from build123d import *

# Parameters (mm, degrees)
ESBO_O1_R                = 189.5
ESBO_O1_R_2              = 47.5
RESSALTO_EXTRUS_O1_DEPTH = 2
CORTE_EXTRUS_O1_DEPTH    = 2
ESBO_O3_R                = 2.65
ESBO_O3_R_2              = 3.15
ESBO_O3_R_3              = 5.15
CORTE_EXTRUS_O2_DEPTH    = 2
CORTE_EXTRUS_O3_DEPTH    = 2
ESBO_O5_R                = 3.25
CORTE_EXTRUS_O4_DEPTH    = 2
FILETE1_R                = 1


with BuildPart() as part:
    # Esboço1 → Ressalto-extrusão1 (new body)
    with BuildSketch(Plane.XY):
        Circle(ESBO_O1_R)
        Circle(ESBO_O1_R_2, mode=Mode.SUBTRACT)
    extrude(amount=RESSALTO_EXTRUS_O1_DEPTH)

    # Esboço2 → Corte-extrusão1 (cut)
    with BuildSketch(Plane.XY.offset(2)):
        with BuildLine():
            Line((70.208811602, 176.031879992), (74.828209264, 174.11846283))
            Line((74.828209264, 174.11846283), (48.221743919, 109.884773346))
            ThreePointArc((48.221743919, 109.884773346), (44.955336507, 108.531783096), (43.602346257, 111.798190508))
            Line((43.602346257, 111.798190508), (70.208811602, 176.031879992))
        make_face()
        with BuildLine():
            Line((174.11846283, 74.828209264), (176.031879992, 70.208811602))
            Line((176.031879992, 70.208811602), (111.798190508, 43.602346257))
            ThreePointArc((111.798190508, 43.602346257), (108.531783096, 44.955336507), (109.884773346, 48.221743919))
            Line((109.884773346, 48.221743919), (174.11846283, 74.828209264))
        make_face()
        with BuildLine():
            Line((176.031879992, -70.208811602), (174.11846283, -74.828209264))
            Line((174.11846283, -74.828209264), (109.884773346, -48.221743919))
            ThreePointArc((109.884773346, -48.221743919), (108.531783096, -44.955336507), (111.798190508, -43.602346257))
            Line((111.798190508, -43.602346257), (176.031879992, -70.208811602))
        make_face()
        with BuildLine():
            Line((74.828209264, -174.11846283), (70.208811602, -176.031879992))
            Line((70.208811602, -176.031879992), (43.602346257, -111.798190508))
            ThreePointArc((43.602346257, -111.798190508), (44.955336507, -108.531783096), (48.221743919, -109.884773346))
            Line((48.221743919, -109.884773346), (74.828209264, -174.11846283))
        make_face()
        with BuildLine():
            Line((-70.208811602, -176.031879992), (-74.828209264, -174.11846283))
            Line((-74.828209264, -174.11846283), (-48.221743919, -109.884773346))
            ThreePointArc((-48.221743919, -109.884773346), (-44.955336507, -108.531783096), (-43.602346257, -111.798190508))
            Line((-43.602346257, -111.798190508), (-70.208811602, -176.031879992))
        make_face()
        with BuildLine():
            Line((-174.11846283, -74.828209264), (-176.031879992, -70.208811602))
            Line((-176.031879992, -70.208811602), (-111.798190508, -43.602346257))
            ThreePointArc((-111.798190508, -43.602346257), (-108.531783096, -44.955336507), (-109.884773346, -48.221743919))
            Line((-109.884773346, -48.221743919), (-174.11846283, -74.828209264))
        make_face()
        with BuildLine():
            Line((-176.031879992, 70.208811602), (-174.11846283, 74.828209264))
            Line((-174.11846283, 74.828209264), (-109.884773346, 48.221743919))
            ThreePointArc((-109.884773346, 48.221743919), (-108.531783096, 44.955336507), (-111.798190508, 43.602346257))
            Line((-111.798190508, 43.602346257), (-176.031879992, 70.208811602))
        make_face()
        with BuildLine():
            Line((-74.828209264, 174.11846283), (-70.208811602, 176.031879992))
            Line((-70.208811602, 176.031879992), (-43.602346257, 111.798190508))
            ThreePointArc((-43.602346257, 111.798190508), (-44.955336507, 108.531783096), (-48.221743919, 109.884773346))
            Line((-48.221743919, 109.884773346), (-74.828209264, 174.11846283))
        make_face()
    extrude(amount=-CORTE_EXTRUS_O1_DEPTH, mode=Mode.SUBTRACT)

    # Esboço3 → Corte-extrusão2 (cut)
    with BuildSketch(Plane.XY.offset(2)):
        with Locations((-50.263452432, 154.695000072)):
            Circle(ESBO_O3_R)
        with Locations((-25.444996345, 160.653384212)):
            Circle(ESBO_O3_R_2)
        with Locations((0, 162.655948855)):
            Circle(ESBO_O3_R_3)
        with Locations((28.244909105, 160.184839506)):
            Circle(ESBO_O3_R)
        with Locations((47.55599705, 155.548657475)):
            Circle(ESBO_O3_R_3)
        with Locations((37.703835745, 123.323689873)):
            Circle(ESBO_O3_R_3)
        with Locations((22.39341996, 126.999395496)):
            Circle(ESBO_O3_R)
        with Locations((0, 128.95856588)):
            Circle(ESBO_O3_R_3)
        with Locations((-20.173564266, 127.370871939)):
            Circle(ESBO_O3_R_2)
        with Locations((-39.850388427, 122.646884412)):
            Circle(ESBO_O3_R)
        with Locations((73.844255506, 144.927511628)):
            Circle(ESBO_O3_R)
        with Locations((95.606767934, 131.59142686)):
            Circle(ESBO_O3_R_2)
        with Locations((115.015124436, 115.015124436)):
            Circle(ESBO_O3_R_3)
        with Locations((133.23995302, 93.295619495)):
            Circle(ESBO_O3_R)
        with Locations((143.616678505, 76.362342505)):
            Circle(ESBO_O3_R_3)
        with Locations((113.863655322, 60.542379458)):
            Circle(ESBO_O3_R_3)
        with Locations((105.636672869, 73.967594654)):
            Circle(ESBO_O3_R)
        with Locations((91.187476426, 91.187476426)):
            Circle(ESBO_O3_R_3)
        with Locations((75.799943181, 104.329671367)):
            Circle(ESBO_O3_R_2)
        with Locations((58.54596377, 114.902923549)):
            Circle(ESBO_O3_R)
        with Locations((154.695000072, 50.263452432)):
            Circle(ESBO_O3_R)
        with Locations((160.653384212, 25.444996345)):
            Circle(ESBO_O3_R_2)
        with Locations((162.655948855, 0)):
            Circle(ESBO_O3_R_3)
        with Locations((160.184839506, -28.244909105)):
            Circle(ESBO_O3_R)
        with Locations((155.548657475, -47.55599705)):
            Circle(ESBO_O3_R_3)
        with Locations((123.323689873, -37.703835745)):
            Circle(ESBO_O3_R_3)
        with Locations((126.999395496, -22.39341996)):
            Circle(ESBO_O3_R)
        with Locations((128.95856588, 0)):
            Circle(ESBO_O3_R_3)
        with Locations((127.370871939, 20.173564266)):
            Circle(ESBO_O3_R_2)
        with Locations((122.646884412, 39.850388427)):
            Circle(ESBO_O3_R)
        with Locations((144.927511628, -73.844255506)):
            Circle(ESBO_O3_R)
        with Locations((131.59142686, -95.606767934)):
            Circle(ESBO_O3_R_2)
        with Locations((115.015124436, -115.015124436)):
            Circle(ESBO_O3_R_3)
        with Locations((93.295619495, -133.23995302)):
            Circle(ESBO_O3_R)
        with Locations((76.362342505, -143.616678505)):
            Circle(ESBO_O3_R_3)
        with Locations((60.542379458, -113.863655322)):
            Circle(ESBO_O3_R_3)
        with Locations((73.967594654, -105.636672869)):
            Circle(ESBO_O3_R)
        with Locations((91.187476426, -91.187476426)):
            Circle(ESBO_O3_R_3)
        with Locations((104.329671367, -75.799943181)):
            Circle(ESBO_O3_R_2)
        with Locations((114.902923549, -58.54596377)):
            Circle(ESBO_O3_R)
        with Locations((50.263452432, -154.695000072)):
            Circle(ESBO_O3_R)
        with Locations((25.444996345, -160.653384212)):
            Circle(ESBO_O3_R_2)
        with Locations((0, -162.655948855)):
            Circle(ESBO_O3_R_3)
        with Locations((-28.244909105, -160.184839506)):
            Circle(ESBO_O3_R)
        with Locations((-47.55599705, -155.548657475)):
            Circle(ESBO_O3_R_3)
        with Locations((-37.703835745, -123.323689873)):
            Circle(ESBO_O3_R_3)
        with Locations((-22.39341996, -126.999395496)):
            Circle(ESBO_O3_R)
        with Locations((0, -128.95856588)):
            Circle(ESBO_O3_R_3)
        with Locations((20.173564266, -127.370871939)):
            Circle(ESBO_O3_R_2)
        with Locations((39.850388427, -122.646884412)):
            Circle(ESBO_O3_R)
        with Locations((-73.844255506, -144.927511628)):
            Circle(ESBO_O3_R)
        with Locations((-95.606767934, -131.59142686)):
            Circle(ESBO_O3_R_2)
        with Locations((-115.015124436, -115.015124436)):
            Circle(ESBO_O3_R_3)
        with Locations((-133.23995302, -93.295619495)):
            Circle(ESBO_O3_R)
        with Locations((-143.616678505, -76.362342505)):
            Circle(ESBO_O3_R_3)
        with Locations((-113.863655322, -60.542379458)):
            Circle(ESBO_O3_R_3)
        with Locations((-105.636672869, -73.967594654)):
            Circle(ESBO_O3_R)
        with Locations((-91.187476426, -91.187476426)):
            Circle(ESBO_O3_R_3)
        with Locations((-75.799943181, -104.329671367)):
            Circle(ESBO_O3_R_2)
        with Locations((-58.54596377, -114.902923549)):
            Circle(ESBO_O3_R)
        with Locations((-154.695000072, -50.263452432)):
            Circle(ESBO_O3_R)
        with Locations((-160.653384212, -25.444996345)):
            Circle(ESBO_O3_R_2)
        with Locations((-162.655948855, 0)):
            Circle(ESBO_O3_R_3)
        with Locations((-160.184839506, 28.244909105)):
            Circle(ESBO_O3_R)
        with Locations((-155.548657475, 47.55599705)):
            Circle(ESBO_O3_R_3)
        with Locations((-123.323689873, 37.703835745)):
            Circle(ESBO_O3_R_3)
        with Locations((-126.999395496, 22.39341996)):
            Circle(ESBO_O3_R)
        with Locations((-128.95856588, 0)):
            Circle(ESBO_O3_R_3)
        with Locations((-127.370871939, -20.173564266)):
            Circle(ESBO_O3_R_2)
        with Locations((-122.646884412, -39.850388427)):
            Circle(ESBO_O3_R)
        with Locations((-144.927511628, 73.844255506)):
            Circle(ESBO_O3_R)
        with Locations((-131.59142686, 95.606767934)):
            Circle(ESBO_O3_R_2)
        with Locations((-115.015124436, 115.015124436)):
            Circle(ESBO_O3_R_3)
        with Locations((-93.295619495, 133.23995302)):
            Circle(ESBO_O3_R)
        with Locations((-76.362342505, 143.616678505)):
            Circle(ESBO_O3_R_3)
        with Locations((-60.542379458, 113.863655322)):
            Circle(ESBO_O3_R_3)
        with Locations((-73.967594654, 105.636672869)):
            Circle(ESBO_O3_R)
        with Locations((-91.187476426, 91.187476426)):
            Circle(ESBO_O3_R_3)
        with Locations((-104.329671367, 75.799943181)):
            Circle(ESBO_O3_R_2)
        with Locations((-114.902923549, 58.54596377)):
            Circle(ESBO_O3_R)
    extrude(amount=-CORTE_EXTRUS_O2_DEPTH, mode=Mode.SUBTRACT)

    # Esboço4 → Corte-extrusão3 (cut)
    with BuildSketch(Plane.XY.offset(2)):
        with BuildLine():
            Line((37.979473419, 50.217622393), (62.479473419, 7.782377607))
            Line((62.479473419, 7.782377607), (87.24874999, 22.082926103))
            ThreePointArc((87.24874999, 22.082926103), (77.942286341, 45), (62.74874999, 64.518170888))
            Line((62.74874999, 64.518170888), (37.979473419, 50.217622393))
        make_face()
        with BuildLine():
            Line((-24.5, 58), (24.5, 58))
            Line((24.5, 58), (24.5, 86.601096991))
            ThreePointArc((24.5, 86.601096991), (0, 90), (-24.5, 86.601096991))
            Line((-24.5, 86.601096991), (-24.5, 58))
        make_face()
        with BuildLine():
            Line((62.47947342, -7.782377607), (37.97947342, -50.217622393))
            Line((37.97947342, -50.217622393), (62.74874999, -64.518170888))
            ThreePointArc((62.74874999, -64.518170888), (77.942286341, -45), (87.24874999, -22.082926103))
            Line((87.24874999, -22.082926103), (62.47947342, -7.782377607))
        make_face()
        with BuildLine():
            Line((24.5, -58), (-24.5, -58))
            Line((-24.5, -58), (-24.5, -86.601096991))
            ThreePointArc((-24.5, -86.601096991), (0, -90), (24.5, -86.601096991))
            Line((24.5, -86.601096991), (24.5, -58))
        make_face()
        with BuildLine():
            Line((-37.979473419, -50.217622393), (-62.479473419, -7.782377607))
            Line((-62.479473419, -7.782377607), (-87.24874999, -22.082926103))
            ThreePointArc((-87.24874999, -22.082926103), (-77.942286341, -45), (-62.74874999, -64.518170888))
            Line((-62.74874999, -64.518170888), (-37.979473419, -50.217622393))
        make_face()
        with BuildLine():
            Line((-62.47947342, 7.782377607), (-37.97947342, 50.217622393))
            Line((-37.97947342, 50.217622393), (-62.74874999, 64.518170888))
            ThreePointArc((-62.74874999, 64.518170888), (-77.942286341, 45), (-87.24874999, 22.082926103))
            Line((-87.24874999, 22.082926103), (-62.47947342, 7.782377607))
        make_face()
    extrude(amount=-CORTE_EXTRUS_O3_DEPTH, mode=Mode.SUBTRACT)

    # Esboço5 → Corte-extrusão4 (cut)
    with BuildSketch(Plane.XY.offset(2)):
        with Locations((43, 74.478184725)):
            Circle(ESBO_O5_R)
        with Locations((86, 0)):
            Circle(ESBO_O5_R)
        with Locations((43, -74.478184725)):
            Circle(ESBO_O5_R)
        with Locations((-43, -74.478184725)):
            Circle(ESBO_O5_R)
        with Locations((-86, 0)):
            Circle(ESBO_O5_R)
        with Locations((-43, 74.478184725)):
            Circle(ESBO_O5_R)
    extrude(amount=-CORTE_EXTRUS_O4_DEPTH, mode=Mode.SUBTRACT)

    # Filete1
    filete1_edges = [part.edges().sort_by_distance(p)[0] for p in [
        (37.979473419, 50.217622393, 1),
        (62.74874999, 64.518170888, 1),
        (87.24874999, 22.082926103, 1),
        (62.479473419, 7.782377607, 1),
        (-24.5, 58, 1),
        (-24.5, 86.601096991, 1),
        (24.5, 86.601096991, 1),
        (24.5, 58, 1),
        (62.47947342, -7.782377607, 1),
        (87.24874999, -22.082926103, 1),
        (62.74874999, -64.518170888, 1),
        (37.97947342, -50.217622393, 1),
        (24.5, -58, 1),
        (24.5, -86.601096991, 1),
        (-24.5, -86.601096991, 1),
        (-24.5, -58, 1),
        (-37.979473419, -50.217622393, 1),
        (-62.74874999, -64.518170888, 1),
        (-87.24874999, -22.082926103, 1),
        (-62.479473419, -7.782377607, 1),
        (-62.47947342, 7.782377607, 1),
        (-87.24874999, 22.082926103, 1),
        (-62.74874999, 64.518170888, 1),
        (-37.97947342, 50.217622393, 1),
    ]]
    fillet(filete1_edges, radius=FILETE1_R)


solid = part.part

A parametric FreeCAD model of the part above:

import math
import FreeCAD as App
import Part
import Sketcher

V = App.Vector
Q = App.Units.Quantity


def edges_at(feature, points):
    """Names of the edges that pass closest to the given points."""
    edges = feature.Shape.Edges
    near = lambda p: min(range(len(edges)), key=lambda i: edges[i].distToShape(Part.Vertex(*p))[0])
    return sorted({f"Edge{near(p) + 1}" for p in points})

doc = App.newDocument("Part")
params = doc.addObject("Spreadsheet::Sheet", "Params")
for row, (alias, value) in enumerate([
    ("sketch1_diameter", "379 mm"),
    ("sketch1_diameter2", "95 mm"),
    ("pad1_length", "2 mm"),
    ("sketch2_radius", "2.5 mm"),
    ("pocket1_length", "2 mm"),
    ("sketch3_diameter", "5.3 mm"),
    ("sketch3_diameter2", "6.3 mm"),
    ("sketch3_diameter3", "10.3 mm"),
    ("pocket2_length", "2 mm"),
    ("sketch4_radius", "90 mm"),
    ("sketch4_width", "49 mm"),
    ("sketch4_length", "49 mm"),
    ("pocket3_length", "2 mm"),
    ("sketch5_diameter", "6.5 mm"),
    ("pocket4_length", "2 mm"),
    ("fillet_radius", "1 mm"),
], start=1):
    params.set(f"A{row}", alias)
    params.set(f"B{row}", "=" + value)
    params.setAlias(f"B{row}", alias)

body = doc.addObject("PartDesign::Body", "Body")

sketch1 = body.newObject("Sketcher::SketchObject", "Sketch")
sketch1.AttachmentSupport = (doc.getObject("XY_Plane"), [""])
sketch1.MapMode = "FlatFace"
sketch1.addGeometry([
    Part.Circle(V(0, 0, 0), V(0, 0, 1), 190),
    Part.Circle(V(0, 0, 0), V(0, 0, 1), 48),
], False)
sketch1.addConstraint([
    Sketcher.Constraint("Coincident", 0, 3, -1, 1),
    Sketcher.Constraint("Coincident", 1, 3, -1, 1),
    Sketcher.Constraint("Diameter", 0, 379.0),
    Sketcher.Constraint("Diameter", 1, 95.0),
])
sketch1.setExpression("Constraints[2]", "Params.sketch1_diameter")
sketch1.setExpression("Constraints[3]", "Params.sketch1_diameter2")
pad1 = body.newObject("PartDesign::Pad", "Pad")
pad1.Profile = sketch1
pad1.setExpression("Length", "Params.pad1_length")

sketch2 = body.newObject("Sketcher::SketchObject", "Sketch001")
sketch2.AttachmentSupport = (doc.getObject("XY_Plane"), [""])
sketch2.MapMode = "FlatFace"
sketch2.AttachmentOffset = App.Placement(V(0, 0, 2), App.Rotation())
sketch2.addGeometry([
    Part.LineSegment(V(74.8, 174.1, 0), V(70.2, 176, 0)),
    Part.LineSegment(V(70.2, 176, 0), V(43.6, 111.8, 0)),
    Part.ArcOfCircle(Part.Circle(V(45.9, 110.8, 0), V(0, 0, 1), 2.5), math.radians(157), math.radians(337)),
    Part.LineSegment(V(48.2, 109.9, 0), V(74.8, 174.1, 0)),
    Part.LineSegment(V(176, 70.2, 0), V(174.1, 74.8, 0)),
    Part.LineSegment(V(174.1, 74.8, 0), V(109.9, 48.2, 0)),
    Part.ArcOfCircle(Part.Circle(V(110.8, 45.9, 0), V(0, 0, 1), 2.5), math.radians(113), math.radians(293)),
    Part.LineSegment(V(111.8, 43.6, 0), V(176, 70.2, 0)),
    Part.LineSegment(V(174.1, -74.8, 0), V(176, -70.2, 0)),
    Part.LineSegment(V(176, -70.2, 0), V(111.8, -43.6, 0)),
    Part.ArcOfCircle(Part.Circle(V(110.8, -45.9, 0), V(0, 0, 1), 2.5), math.radians(67), math.radians(247)),
    Part.LineSegment(V(109.9, -48.2, 0), V(174.1, -74.8, 0)),
    Part.LineSegment(V(70.2, -176, 0), V(74.8, -174.1, 0)),
    Part.LineSegment(V(74.8, -174.1, 0), V(48.2, -109.9, 0)),
    Part.ArcOfCircle(Part.Circle(V(45.9, -110.8, 0), V(0, 0, 1), 2.5), math.radians(23), math.radians(203)),
    Part.LineSegment(V(43.6, -111.8, 0), V(70.2, -176, 0)),
    Part.LineSegment(V(-74.8, -174.1, 0), V(-70.2, -176, 0)),
    Part.LineSegment(V(-70.2, -176, 0), V(-43.6, -111.8, 0)),
    Part.ArcOfCircle(Part.Circle(V(-45.9, -110.8, 0), V(0, 0, 1), 2.5), math.radians(-23), math.radians(157)),
    Part.LineSegment(V(-48.2, -109.9, 0), V(-74.8, -174.1, 0)),
    Part.LineSegment(V(-176, -70.2, 0), V(-174.1, -74.8, 0)),
    Part.LineSegment(V(-174.1, -74.8, 0), V(-109.9, -48.2, 0)),
    Part.ArcOfCircle(Part.Circle(V(-110.8, -45.9, 0), V(0, 0, 1), 2.5), math.radians(-67), math.radians(113)),
    Part.LineSegment(V(-111.8, -43.6, 0), V(-176, -70.2, 0)),
    Part.LineSegment(V(-174.1, 74.8, 0), V(-176, 70.2, 0)),
    Part.LineSegment(V(-176, 70.2, 0), V(-111.8, 43.6, 0)),
    Part.ArcOfCircle(Part.Circle(V(-110.8, 45.9, 0), V(0, 0, 1), 2.5), math.radians(-113), math.radians(67)),
    Part.LineSegment(V(-109.9, 48.2, 0), V(-174.1, 74.8, 0)),
    Part.LineSegment(V(-70.2, 176, 0), V(-74.8, 174.1, 0)),
    Part.LineSegment(V(-74.8, 174.1, 0), V(-48.2, 109.9, 0)),
    Part.ArcOfCircle(Part.Circle(V(-45.9, 110.8, 0), V(0, 0, 1), 2.5), math.radians(-157), math.radians(23)),
    Part.LineSegment(V(-43.6, 111.8, 0), V(-70.2, 176, 0)),
], False)
sketch2.addConstraint([
    Sketcher.Constraint("Coincident", 0, 2, 1, 1),
    Sketcher.Constraint("Tangent", 1, 2, 2, 1),
    Sketcher.Constraint("Tangent", 2, 2, 3, 1),
    Sketcher.Constraint("Coincident", 3, 2, 0, 1),
    Sketcher.Constraint("Coincident", 4, 2, 5, 1),
    Sketcher.Constraint("Tangent", 5, 2, 6, 1),
    Sketcher.Constraint("Tangent", 6, 2, 7, 1),
    Sketcher.Constraint("Coincident", 7, 2, 4, 1),
    Sketcher.Constraint("Coincident", 8, 2, 9, 1),
    Sketcher.Constraint("Tangent", 9, 2, 10, 1),
    Sketcher.Constraint("Tangent", 10, 2, 11, 1),
    Sketcher.Constraint("Coincident", 11, 2, 8, 1),
    Sketcher.Constraint("Coincident", 12, 2, 13, 1),
    Sketcher.Constraint("Tangent", 13, 2, 14, 1),
    Sketcher.Constraint("Tangent", 14, 2, 15, 1),
    Sketcher.Constraint("Coincident", 15, 2, 12, 1),
    Sketcher.Constraint("Coincident", 16, 2, 17, 1),
    Sketcher.Constraint("Tangent", 17, 2, 18, 1),
    Sketcher.Constraint("Tangent", 18, 2, 19, 1),
    Sketcher.Constraint("Coincident", 19, 2, 16, 1),
    Sketcher.Constraint("Coincident", 20, 2, 21, 1),
    Sketcher.Constraint("Tangent", 21, 2, 22, 1),
    Sketcher.Constraint("Tangent", 22, 2, 23, 1),
    Sketcher.Constraint("Coincident", 23, 2, 20, 1),
    Sketcher.Constraint("Coincident", 24, 2, 25, 1),
    Sketcher.Constraint("Tangent", 25, 2, 26, 1),
    Sketcher.Constraint("Tangent", 26, 2, 27, 1),
    Sketcher.Constraint("Coincident", 27, 2, 24, 1),
    Sketcher.Constraint("Coincident", 28, 2, 29, 1),
    Sketcher.Constraint("Tangent", 29, 2, 30, 1),
    Sketcher.Constraint("Tangent", 30, 2, 31, 1),
    Sketcher.Constraint("Coincident", 31, 2, 28, 1),
    Sketcher.Constraint("Equal", 2, 6),
    Sketcher.Constraint("Equal", 6, 10),
    Sketcher.Constraint("Equal", 10, 14),
    Sketcher.Constraint("Equal", 14, 18),
    Sketcher.Constraint("Equal", 18, 22),
    Sketcher.Constraint("Equal", 22, 26),
    Sketcher.Constraint("Equal", 26, 30),
    Sketcher.Constraint("Symmetric", 2, 3, 18, 3, -1, 1),
    Sketcher.Constraint("Symmetric", 6, 3, 22, 3, -1, 1),
    Sketcher.Constraint("Symmetric", 10, 3, 26, 3, -1, 1),
    Sketcher.Constraint("Symmetric", 14, 3, 30, 3, -1, 1),
    Sketcher.Constraint("Symmetric", 0, 2, 16, 2, -1, 1),
    Sketcher.Constraint("Symmetric", 3, 2, 19, 2, -1, 1),
    Sketcher.Constraint("Symmetric", 4, 2, 20, 2, -1, 1),
    Sketcher.Constraint("Symmetric", 7, 2, 23, 2, -1, 1),
    Sketcher.Constraint("Symmetric", 8, 2, 24, 2, -1, 1),
    Sketcher.Constraint("Symmetric", 11, 2, 27, 2, -1, 1),
    Sketcher.Constraint("Symmetric", 12, 2, 28, 2, -1, 1),
    Sketcher.Constraint("Symmetric", 15, 2, 31, 2, -1, 1),
    Sketcher.Constraint("Symmetric", 14, 3, 18, 3, -2),
    Sketcher.Constraint("Symmetric", 10, 3, 22, 3, -2),
    Sketcher.Constraint("Symmetric", 15, 2, 16, 2, -2),
    Sketcher.Constraint("Symmetric", 12, 2, 19, 2, -2),
    Sketcher.Constraint("Symmetric", 11, 2, 20, 2, -2),
    Sketcher.Constraint("Symmetric", 8, 2, 23, 2, -2),
    Sketcher.Constraint("Perpendicular", 0, 1),
    Sketcher.Constraint("Parallel", 1, 3),
    Sketcher.Constraint("Perpendicular", 4, 5),
    Sketcher.Constraint("Parallel", 5, 7),
    Sketcher.Constraint("Parallel", 3, 8),
    Sketcher.Constraint("Equal", 3, 5),
    Sketcher.Constraint("Radius", 2, 2.5),
    Sketcher.Constraint("Angle", 0, Q("157.5 deg")),
    Sketcher.Constraint("DistanceY", 2, 3, 0, 2, 65.190398),
    Sketcher.Constraint("DistanceY", -1, 1, 2, 3, 110.841482),
    Sketcher.Constraint("DistanceX", -1, 1, 6, 3, 110.841482),
    Sketcher.Constraint("DistanceX", -1, 1, 0, 2, 70.208812),
    Sketcher.Constraint("DistanceY", -1, 1, 4, 2, 74.828209),
])
sketch2.setExpression("Constraints[63]", "Params.sketch2_radius")
pocket1 = body.newObject("PartDesign::Pocket", "Pocket")
pocket1.Profile = sketch2
pocket1.setExpression("Length", "Params.pocket1_length")

sketch3 = body.newObject("Sketcher::SketchObject", "Sketch002")
sketch3.AttachmentSupport = (doc.getObject("XY_Plane"), [""])
sketch3.MapMode = "FlatFace"
sketch3.AttachmentOffset = App.Placement(V(0, 0, 2), App.Rotation())
sketch3.addGeometry([
    Part.Circle(V(-50.3, 154.7, 0), V(0, 0, 1), 2.6),
    Part.Circle(V(-25.4, 160.7, 0), V(0, 0, 1), 3.1),
    Part.Circle(V(0, 162.7, 0), V(0, 0, 1), 5.2),
    Part.Circle(V(28.2, 160.2, 0), V(0, 0, 1), 2.6),
    Part.Circle(V(47.6, 155.5, 0), V(0, 0, 1), 5.2),
    Part.Circle(V(37.7, 123.3, 0), V(0, 0, 1), 5.2),
    Part.Circle(V(22.4, 127, 0), V(0, 0, 1), 2.6),
    Part.Circle(V(0, 129, 0), V(0, 0, 1), 5.2),
    Part.Circle(V(-20.2, 127.4, 0), V(0, 0, 1), 3.1),
    Part.Circle(V(-39.9, 122.6, 0), V(0, 0, 1), 2.6),
    Part.Circle(V(73.8, 144.9, 0), V(0, 0, 1), 2.6),
    Part.Circle(V(95.6, 131.6, 0), V(0, 0, 1), 3.1),
    Part.Circle(V(115, 115, 0), V(0, 0, 1), 5.2),
    Part.Circle(V(133.2, 93.3, 0), V(0, 0, 1), 2.6),
    Part.Circle(V(143.6, 76.4, 0), V(0, 0, 1), 5.2),
    Part.Circle(V(113.9, 60.5, 0), V(0, 0, 1), 5.2),
    Part.Circle(V(105.6, 74, 0), V(0, 0, 1), 2.6),
    Part.Circle(V(91.2, 91.2, 0), V(0, 0, 1), 5.2),
    Part.Circle(V(75.8, 104.3, 0), V(0, 0, 1), 3.1),
    Part.Circle(V(58.5, 114.9, 0), V(0, 0, 1), 2.6),
    Part.Circle(V(154.7, 50.3, 0), V(0, 0, 1), 2.6),
    Part.Circle(V(160.7, 25.4, 0), V(0, 0, 1), 3.1),
    Part.Circle(V(162.7, 0, 0), V(0, 0, 1), 5.2),
    Part.Circle(V(160.2, -28.2, 0), V(0, 0, 1), 2.6),
    Part.Circle(V(155.5, -47.6, 0), V(0, 0, 1), 5.2),
    Part.Circle(V(123.3, -37.7, 0), V(0, 0, 1), 5.2),
    Part.Circle(V(127, -22.4, 0), V(0, 0, 1), 2.6),
    Part.Circle(V(129, 0, 0), V(0, 0, 1), 5.2),
    Part.Circle(V(127.4, 20.2, 0), V(0, 0, 1), 3.1),
    Part.Circle(V(122.6, 39.9, 0), V(0, 0, 1), 2.6),
    Part.Circle(V(144.9, -73.8, 0), V(0, 0, 1), 2.6),
    Part.Circle(V(131.6, -95.6, 0), V(0, 0, 1), 3.1),
    Part.Circle(V(115, -115, 0), V(0, 0, 1), 5.2),
    Part.Circle(V(93.3, -133.2, 0), V(0, 0, 1), 2.6),
    Part.Circle(V(76.4, -143.6, 0), V(0, 0, 1), 5.2),
    Part.Circle(V(60.5, -113.9, 0), V(0, 0, 1), 5.2),
    Part.Circle(V(74, -105.6, 0), V(0, 0, 1), 2.6),
    Part.Circle(V(91.2, -91.2, 0), V(0, 0, 1), 5.2),
    Part.Circle(V(104.3, -75.8, 0), V(0, 0, 1), 3.1),
    Part.Circle(V(114.9, -58.5, 0), V(0, 0, 1), 2.6),
    Part.Circle(V(50.3, -154.7, 0), V(0, 0, 1), 2.6),
    Part.Circle(V(25.4, -160.7, 0), V(0, 0, 1), 3.1),
    Part.Circle(V(0, -162.7, 0), V(0, 0, 1), 5.2),
    Part.Circle(V(-28.2, -160.2, 0), V(0, 0, 1), 2.6),
    Part.Circle(V(-47.6, -155.5, 0), V(0, 0, 1), 5.2),
    Part.Circle(V(-37.7, -123.3, 0), V(0, 0, 1), 5.2),
    Part.Circle(V(-22.4, -127, 0), V(0, 0, 1), 2.6),
    Part.Circle(V(0, -129, 0), V(0, 0, 1), 5.2),
    Part.Circle(V(20.2, -127.4, 0), V(0, 0, 1), 3.1),
    Part.Circle(V(39.9, -122.6, 0), V(0, 0, 1), 2.6),
    Part.Circle(V(-73.8, -144.9, 0), V(0, 0, 1), 2.6),
    Part.Circle(V(-95.6, -131.6, 0), V(0, 0, 1), 3.1),
    Part.Circle(V(-115, -115, 0), V(0, 0, 1), 5.2),
    Part.Circle(V(-133.2, -93.3, 0), V(0, 0, 1), 2.6),
    Part.Circle(V(-143.6, -76.4, 0), V(0, 0, 1), 5.2),
    Part.Circle(V(-113.9, -60.5, 0), V(0, 0, 1), 5.2),
    Part.Circle(V(-105.6, -74, 0), V(0, 0, 1), 2.6),
    Part.Circle(V(-91.2, -91.2, 0), V(0, 0, 1), 5.2),
    Part.Circle(V(-75.8, -104.3, 0), V(0, 0, 1), 3.1),
    Part.Circle(V(-58.5, -114.9, 0), V(0, 0, 1), 2.6),
    Part.Circle(V(-154.7, -50.3, 0), V(0, 0, 1), 2.6),
    Part.Circle(V(-160.7, -25.4, 0), V(0, 0, 1), 3.1),
    Part.Circle(V(-162.7, 0, 0), V(0, 0, 1), 5.2),
    Part.Circle(V(-160.2, 28.2, 0), V(0, 0, 1), 2.6),
    Part.Circle(V(-155.5, 47.6, 0), V(0, 0, 1), 5.2),
    Part.Circle(V(-123.3, 37.7, 0), V(0, 0, 1), 5.2),
    Part.Circle(V(-127, 22.4, 0), V(0, 0, 1), 2.6),
    Part.Circle(V(-129, 0, 0), V(0, 0, 1), 5.2),
    Part.Circle(V(-127.4, -20.2, 0), V(0, 0, 1), 3.1),
    Part.Circle(V(-122.6, -39.9, 0), V(0, 0, 1), 2.6),
    Part.Circle(V(-144.9, 73.8, 0), V(0, 0, 1), 2.6),
    Part.Circle(V(-131.6, 95.6, 0), V(0, 0, 1), 3.1),
    Part.Circle(V(-115, 115, 0), V(0, 0, 1), 5.2),
    Part.Circle(V(-93.3, 133.2, 0), V(0, 0, 1), 2.6),
    Part.Circle(V(-76.4, 143.6, 0), V(0, 0, 1), 5.2),
    Part.Circle(V(-60.5, 113.9, 0), V(0, 0, 1), 5.2),
    Part.Circle(V(-74, 105.6, 0), V(0, 0, 1), 2.6),
    Part.Circle(V(-91.2, 91.2, 0), V(0, 0, 1), 5.2),
    Part.Circle(V(-104.3, 75.8, 0), V(0, 0, 1), 3.1),
    Part.Circle(V(-114.9, 58.5, 0), V(0, 0, 1), 2.6),
], False)
sketch3.addConstraint([
    Sketcher.Constraint("Equal", 0, 3),
    Sketcher.Constraint("Equal", 2, 4),
    Sketcher.Constraint("Equal", 4, 5),
    Sketcher.Constraint("Equal", 3, 6),
    Sketcher.Constraint("Equal", 5, 7),
    Sketcher.Constraint("Equal", 1, 8),
    Sketcher.Constraint("Equal", 6, 9),
    Sketcher.Constraint("Equal", 9, 10),
    Sketcher.Constraint("Equal", 8, 11),
    Sketcher.Constraint("Equal", 7, 12),
    Sketcher.Constraint("Equal", 10, 13),
    Sketcher.Constraint("Equal", 12, 14),
    Sketcher.Constraint("Equal", 14, 15),
    Sketcher.Constraint("Equal", 13, 16),
    Sketcher.Constraint("Equal", 15, 17),
    Sketcher.Constraint("Equal", 11, 18),
    Sketcher.Constraint("Equal", 16, 19),
    Sketcher.Constraint("Equal", 19, 20),
    Sketcher.Constraint("Equal", 18, 21),
    Sketcher.Constraint("Equal", 17, 22),
    Sketcher.Constraint("Equal", 20, 23),
    Sketcher.Constraint("Equal", 22, 24),
    Sketcher.Constraint("Equal", 24, 25),
    Sketcher.Constraint("Equal", 23, 26),
    Sketcher.Constraint("Equal", 25, 27),
    Sketcher.Constraint("Equal", 21, 28),
    Sketcher.Constraint("Equal", 26, 29),
    Sketcher.Constraint("Equal", 29, 30),
    Sketcher.Constraint("Equal", 28, 31),
    Sketcher.Constraint("Equal", 27, 32),
    Sketcher.Constraint("Equal", 30, 33),
    Sketcher.Constraint("Equal", 32, 34),
    Sketcher.Constraint("Equal", 34, 35),
    Sketcher.Constraint("Equal", 33, 36),
    Sketcher.Constraint("Equal", 35, 37),
    Sketcher.Constraint("Equal", 31, 38),
    Sketcher.Constraint("Equal", 36, 39),
    Sketcher.Constraint("Equal", 39, 40),
    Sketcher.Constraint("Equal", 38, 41),
    Sketcher.Constraint("Equal", 37, 42),
    Sketcher.Constraint("Equal", 40, 43),
    Sketcher.Constraint("Equal", 42, 44),
    Sketcher.Constraint("Equal", 44, 45),
    Sketcher.Constraint("Equal", 43, 46),
    Sketcher.Constraint("Equal", 45, 47),
    Sketcher.Constraint("Equal", 41, 48),
    Sketcher.Constraint("Equal", 46, 49),
    Sketcher.Constraint("Equal", 49, 50),
    Sketcher.Constraint("Equal", 48, 51),
    Sketcher.Constraint("Equal", 47, 52),
    Sketcher.Constraint("Equal", 50, 53),
    Sketcher.Constraint("Equal", 52, 54),
    Sketcher.Constraint("Equal", 54, 55),
    Sketcher.Constraint("Equal", 53, 56),
    Sketcher.Constraint("Equal", 55, 57),
    Sketcher.Constraint("Equal", 51, 58),
    Sketcher.Constraint("Equal", 56, 59),
    Sketcher.Constraint("Equal", 59, 60),
    Sketcher.Constraint("Equal", 58, 61),
    Sketcher.Constraint("Equal", 57, 62),
    Sketcher.Constraint("Equal", 60, 63),
    Sketcher.Constraint("Equal", 62, 64),
    Sketcher.Constraint("Equal", 64, 65),
    Sketcher.Constraint("Equal", 63, 66),
    Sketcher.Constraint("Equal", 65, 67),
    Sketcher.Constraint("Equal", 61, 68),
    Sketcher.Constraint("Equal", 66, 69),
    Sketcher.Constraint("Equal", 69, 70),
    Sketcher.Constraint("Equal", 68, 71),
    Sketcher.Constraint("Equal", 67, 72),
    Sketcher.Constraint("Equal", 70, 73),
    Sketcher.Constraint("Equal", 72, 74),
    Sketcher.Constraint("Equal", 74, 75),
    Sketcher.Constraint("Equal", 73, 76),
    Sketcher.Constraint("Equal", 75, 77),
    Sketcher.Constraint("Equal", 71, 78),
    Sketcher.Constraint("Equal", 76, 79),
    Sketcher.Constraint("Symmetric", 0, 3, 40, 3, -1, 1),
    Sketcher.Constraint("Symmetric", 1, 3, 41, 3, -1, 1),
    Sketcher.Constraint("Symmetric", 2, 3, 42, 3, -1, 1),
    Sketcher.Constraint("Symmetric", 3, 3, 43, 3, -1, 1),
    Sketcher.Constraint("Symmetric", 4, 3, 44, 3, -1, 1),
    Sketcher.Constraint("Symmetric", 5, 3, 45, 3, -1, 1),
    Sketcher.Constraint("Symmetric", 6, 3, 46, 3, -1, 1),
    Sketcher.Constraint("Symmetric", 7, 3, 47, 3, -1, 1),
    Sketcher.Constraint("Symmetric", 8, 3, 48, 3, -1, 1),
    Sketcher.Constraint("Symmetric", 9, 3, 49, 3, -1, 1),
    Sketcher.Constraint("Symmetric", 10, 3, 50, 3, -1, 1),
    Sketcher.Constraint("Symmetric", 11, 3, 51, 3, -1, 1),
    Sketcher.Constraint("Symmetric", 12, 3, 52, 3, -1, 1),
    Sketcher.Constraint("Symmetric", 13, 3, 53, 3, -1, 1),
    Sketcher.Constraint("Symmetric", 14, 3, 54, 3, -1, 1),
    Sketcher.Constraint("Symmetric", 15, 3, 55, 3, -1, 1),
    Sketcher.Constraint("Symmetric", 16, 3, 56, 3, -1, 1),
    Sketcher.Constraint("Symmetric", 17, 3, 57, 3, -1, 1),
    Sketcher.Constraint("Symmetric", 18, 3, 58, 3, -1, 1),
    Sketcher.Constraint("Symmetric", 19, 3, 59, 3, -1, 1),
    Sketcher.Constraint("Symmetric", 20, 3, 60, 3, -1, 1),
    Sketcher.Constraint("Symmetric", 21, 3, 61, 3, -1, 1),
    Sketcher.Constraint("Symmetric", 22, 3, 62, 3, -1, 1),
    Sketcher.Constraint("Symmetric", 23, 3, 63, 3, -1, 1),
    Sketcher.Constraint("Symmetric", 24, 3, 64, 3, -1, 1),
    Sketcher.Constraint("Symmetric", 25, 3, 65, 3, -1, 1),
    Sketcher.Constraint("Symmetric", 26, 3, 66, 3, -1, 1),
    Sketcher.Constraint("Symmetric", 27, 3, 67, 3, -1, 1),
    Sketcher.Constraint("Symmetric", 28, 3, 68, 3, -1, 1),
    Sketcher.Constraint("Symmetric", 29, 3, 69, 3, -1, 1),
    Sketcher.Constraint("Symmetric", 30, 3, 70, 3, -1, 1),
    Sketcher.Constraint("Symmetric", 31, 3, 71, 3, -1, 1),
    Sketcher.Constraint("Symmetric", 32, 3, 72, 3, -1, 1),
    Sketcher.Constraint("Symmetric", 33, 3, 73, 3, -1, 1),
    Sketcher.Constraint("Symmetric", 34, 3, 74, 3, -1, 1),
    Sketcher.Constraint("Symmetric", 35, 3, 75, 3, -1, 1),
    Sketcher.Constraint("Symmetric", 36, 3, 76, 3, -1, 1),
    Sketcher.Constraint("Symmetric", 37, 3, 77, 3, -1, 1),
    Sketcher.Constraint("Symmetric", 38, 3, 78, 3, -1, 1),
    Sketcher.Constraint("Symmetric", 39, 3, 79, 3, -1, 1),
    Sketcher.Constraint("Symmetric", 32, 3, 52, 3, -2),
    Sketcher.Constraint("Symmetric", 37, 3, 57, 3, -2),
    Sketcher.Constraint("PointOnObject", 2, 3, -2),
    Sketcher.Constraint("PointOnObject", 7, 3, -2),
    Sketcher.Constraint("PointOnObject", 22, 3, -1),
    Sketcher.Constraint("PointOnObject", 27, 3, -1),
    Sketcher.Constraint("Diameter", 0, 5.3),
    Sketcher.Constraint("Diameter", 1, 6.3),
    Sketcher.Constraint("Diameter", 2, 10.3),
    Sketcher.Constraint("DistanceY", -1, 1, 0, 3, 154.695),
    Sketcher.Constraint("DistanceX", -1, 1, 20, 3, 154.695),
    Sketcher.Constraint("DistanceY", -1, 1, 2, 3, 162.655949),
    Sketcher.Constraint("DistanceX", -1, 1, 3, 3, 28.244909),
    Sketcher.Constraint("DistanceY", -1, 1, 3, 3, 160.18484),
    Sketcher.Constraint("DistanceY", -1, 1, 5, 3, 123.32369),
    Sketcher.Constraint("DistanceX", -1, 1, 6, 3, 22.39342),
    Sketcher.Constraint("DistanceY", -1, 1, 8, 3, 127.370872),
    Sketcher.Constraint("DistanceX", 9, 3, -1, 1, 39.850388),
    Sketcher.Constraint("DistanceY", -1, 1, 10, 3, 144.927512),
    Sketcher.Constraint("DistanceY", -1, 1, 13, 3, 93.295619),
    Sketcher.Constraint("DistanceX", -1, 1, 14, 3, 143.616679),
    Sketcher.Constraint("DistanceY", -1, 1, 15, 3, 60.542379),
    Sketcher.Constraint("DistanceY", -1, 1, 18, 3, 104.329671),
    Sketcher.Constraint("DistanceX", -1, 1, 22, 3, 162.655949),
    Sketcher.Constraint("DistanceX", -1, 1, 23, 3, 160.18484),
    Sketcher.Constraint("DistanceY", 23, 3, -1, 1, 28.244909),
    Sketcher.Constraint("DistanceX", -1, 1, 25, 3, 123.32369),
    Sketcher.Constraint("DistanceY", 26, 3, -1, 1, 22.39342),
    Sketcher.Constraint("DistanceX", -1, 1, 28, 3, 127.370872),
    Sketcher.Constraint("DistanceY", -1, 1, 29, 3, 39.850388),
    Sketcher.Constraint("DistanceX", -1, 1, 30, 3, 144.927512),
    Sketcher.Constraint("DistanceX", -1, 1, 33, 3, 93.295619),
    Sketcher.Constraint("DistanceY", 34, 3, -1, 1, 143.616679),
    Sketcher.Constraint("DistanceX", -1, 1, 35, 3, 60.542379),
    Sketcher.Constraint("DistanceX", -1, 1, 38, 3, 104.329671),
    Sketcher.Constraint("DistanceX", 0, 3, -1, 1, 50.263452),
    Sketcher.Constraint("DistanceX", 1, 3, -1, 1, 25.444996),
    Sketcher.Constraint("DistanceY", -1, 1, 1, 3, 160.653384),
    Sketcher.Constraint("DistanceX", -1, 1, 4, 3, 47.555997),
    Sketcher.Constraint("DistanceY", -1, 1, 4, 3, 155.548657),
    Sketcher.Constraint("DistanceX", -1, 1, 5, 3, 37.703836),
    Sketcher.Constraint("DistanceY", -1, 1, 6, 3, 126.999395),
    Sketcher.Constraint("DistanceY", -1, 1, 7, 3, 128.958566),
    Sketcher.Constraint("DistanceX", 8, 3, -1, 1, 20.173564),
    Sketcher.Constraint("DistanceY", -1, 1, 9, 3, 122.646884),
    Sketcher.Constraint("DistanceX", -1, 1, 10, 3, 73.844256),
    Sketcher.Constraint("DistanceX", -1, 1, 11, 3, 95.606768),
    Sketcher.Constraint("DistanceY", -1, 1, 11, 3, 131.591427),
    Sketcher.Constraint("DistanceX", -1, 1, 12, 3, 115.015124),
    Sketcher.Constraint("DistanceY", -1, 1, 12, 3, 115.015124),
    Sketcher.Constraint("DistanceX", -1, 1, 13, 3, 133.239953),
    Sketcher.Constraint("DistanceY", -1, 1, 14, 3, 76.362343),
    Sketcher.Constraint("DistanceX", -1, 1, 15, 3, 113.863655),
    Sketcher.Constraint("DistanceX", -1, 1, 16, 3, 105.636673),
    Sketcher.Constraint("DistanceY", -1, 1, 16, 3, 73.967595),
    Sketcher.Constraint("DistanceX", -1, 1, 17, 3, 91.187476),
    Sketcher.Constraint("DistanceY", -1, 1, 17, 3, 91.187476),
    Sketcher.Constraint("DistanceX", -1, 1, 18, 3, 75.799943),
    Sketcher.Constraint("DistanceX", -1, 1, 19, 3, 58.545964),
    Sketcher.Constraint("DistanceY", -1, 1, 19, 3, 114.902924),
    Sketcher.Constraint("DistanceY", -1, 1, 20, 3, 50.263452),
    Sketcher.Constraint("DistanceX", -1, 1, 21, 3, 160.653384),
    Sketcher.Constraint("DistanceY", -1, 1, 21, 3, 25.444996),
    Sketcher.Constraint("DistanceX", -1, 1, 24, 3, 155.548657),
    Sketcher.Constraint("DistanceY", 24, 3, -1, 1, 47.555997),
    Sketcher.Constraint("DistanceY", 25, 3, -1, 1, 37.703836),
    Sketcher.Constraint("DistanceX", -1, 1, 26, 3, 126.999395),
    Sketcher.Constraint("DistanceX", -1, 1, 27, 3, 128.958566),
    Sketcher.Constraint("DistanceY", -1, 1, 28, 3, 20.173564),
    Sketcher.Constraint("DistanceX", -1, 1, 29, 3, 122.646884),
    Sketcher.Constraint("DistanceY", 30, 3, -1, 1, 73.844256),
    Sketcher.Constraint("DistanceX", -1, 1, 31, 3, 131.591427),
    Sketcher.Constraint("DistanceY", 31, 3, -1, 1, 95.606768),
    Sketcher.Constraint("DistanceY", 33, 3, -1, 1, 133.239953),
    Sketcher.Constraint("DistanceX", -1, 1, 34, 3, 76.362343),
    Sketcher.Constraint("DistanceY", 35, 3, -1, 1, 113.863655),
    Sketcher.Constraint("DistanceX", -1, 1, 36, 3, 73.967595),
    Sketcher.Constraint("DistanceY", 36, 3, -1, 1, 105.636673),
    Sketcher.Constraint("DistanceY", 38, 3, -1, 1, 75.799943),
    Sketcher.Constraint("DistanceX", -1, 1, 39, 3, 114.902924),
    Sketcher.Constraint("DistanceY", 39, 3, -1, 1, 58.545964),
])
sketch3.setExpression("Constraints[123]", "Params.sketch3_diameter")
sketch3.setExpression("Constraints[124]", "Params.sketch3_diameter2")
sketch3.setExpression("Constraints[125]", "Params.sketch3_diameter3")
pocket2 = body.newObject("PartDesign::Pocket", "Pocket001")
pocket2.Profile = sketch3
pocket2.setExpression("Length", "Params.pocket2_length")

sketch4 = body.newObject("Sketcher::SketchObject", "Sketch003")
sketch4.AttachmentSupport = (doc.getObject("XY_Plane"), [""])
sketch4.MapMode = "FlatFace"
sketch4.AttachmentOffset = App.Placement(V(0, 0, 2), App.Rotation())
sketch4.addGeometry([
    Part.LineSegment(V(38, 50, 0), V(62, 8, 0)),
    Part.LineSegment(V(62, 8, 0), V(87, 22, 0)),
    Part.ArcOfCircle(Part.Circle(V(0, 0, 0), V(0, 0, 1), 90), math.radians(14), math.radians(46)),
    Part.LineSegment(V(63, 65, 0), V(38, 50, 0)),
    Part.LineSegment(V(-24, 58, 0), V(24, 58, 0)),
    Part.LineSegment(V(24, 58, 0), V(24, 87, 0)),
    Part.ArcOfCircle(Part.Circle(V(0, 0, 0), V(0, 0, 1), 90), math.radians(74), math.radians(106)),
    Part.LineSegment(V(-24, 87, 0), V(-24, 58, 0)),
    Part.LineSegment(V(62, -8, 0), V(38, -50, 0)),
    Part.LineSegment(V(38, -50, 0), V(63, -65, 0)),
    Part.ArcOfCircle(Part.Circle(V(0, 0, 0), V(0, 0, 1), 90), math.radians(-46), math.radians(-14)),
    Part.LineSegment(V(87, -22, 0), V(62, -8, 0)),
    Part.LineSegment(V(24, -58, 0), V(-24, -58, 0)),
    Part.LineSegment(V(-24, -58, 0), V(-24, -87, 0)),
    Part.ArcOfCircle(Part.Circle(V(0, 0, 0), V(0, 0, 1), 90), math.radians(-106), math.radians(-74)),
    Part.LineSegment(V(24, -87, 0), V(24, -58, 0)),
    Part.LineSegment(V(-38, -50, 0), V(-62, -8, 0)),
    Part.LineSegment(V(-62, -8, 0), V(-87, -22, 0)),
    Part.ArcOfCircle(Part.Circle(V(0, 0, 0), V(0, 0, 1), 90), math.radians(-166), math.radians(-134)),
    Part.LineSegment(V(-63, -65, 0), V(-38, -50, 0)),
    Part.LineSegment(V(-62, 8, 0), V(-38, 50, 0)),
    Part.LineSegment(V(-38, 50, 0), V(-63, 65, 0)),
    Part.ArcOfCircle(Part.Circle(V(0, 0, 0), V(0, 0, 1), 90), math.radians(134), math.radians(166)),
    Part.LineSegment(V(-87, 22, 0), V(-62, 8, 0)),
], False)
sketch4.addConstraint([
    Sketcher.Constraint("Coincident", 0, 2, 1, 1),
    Sketcher.Constraint("Coincident", 1, 2, 2, 1),
    Sketcher.Constraint("Coincident", 2, 2, 3, 1),
    Sketcher.Constraint("Coincident", 3, 2, 0, 1),
    Sketcher.Constraint("Coincident", 4, 2, 5, 1),
    Sketcher.Constraint("Coincident", 5, 2, 6, 1),
    Sketcher.Constraint("Coincident", 6, 2, 7, 1),
    Sketcher.Constraint("Coincident", 7, 2, 4, 1),
    Sketcher.Constraint("Coincident", 8, 2, 9, 1),
    Sketcher.Constraint("Coincident", 9, 2, 10, 1),
    Sketcher.Constraint("Coincident", 10, 2, 11, 1),
    Sketcher.Constraint("Coincident", 11, 2, 8, 1),
    Sketcher.Constraint("Coincident", 12, 2, 13, 1),
    Sketcher.Constraint("Coincident", 13, 2, 14, 1),
    Sketcher.Constraint("Coincident", 14, 2, 15, 1),
    Sketcher.Constraint("Coincident", 15, 2, 12, 1),
    Sketcher.Constraint("Coincident", 16, 2, 17, 1),
    Sketcher.Constraint("Coincident", 17, 2, 18, 1),
    Sketcher.Constraint("Coincident", 18, 2, 19, 1),
    Sketcher.Constraint("Coincident", 19, 2, 16, 1),
    Sketcher.Constraint("Coincident", 20, 2, 21, 1),
    Sketcher.Constraint("Coincident", 21, 2, 22, 1),
    Sketcher.Constraint("Coincident", 22, 2, 23, 1),
    Sketcher.Constraint("Coincident", 23, 2, 20, 1),
    Sketcher.Constraint("Horizontal", 4),
    Sketcher.Constraint("Vertical", 5),
    Sketcher.Constraint("Vertical", 7),
    Sketcher.Constraint("Horizontal", 12),
    Sketcher.Constraint("Vertical", 13),
    Sketcher.Constraint("Vertical", 15),
    Sketcher.Constraint("Coincident", 2, 3, -1, 1),
    Sketcher.Constraint("Coincident", 6, 3, -1, 1),
    Sketcher.Constraint("Coincident", 10, 3, -1, 1),
    Sketcher.Constraint("Coincident", 14, 3, -1, 1),
    Sketcher.Constraint("Coincident", 18, 3, -1, 1),
    Sketcher.Constraint("Coincident", 22, 3, -1, 1),
    Sketcher.Constraint("Equal", 2, 6),
    Sketcher.Constraint("Equal", 6, 10),
    Sketcher.Constraint("Equal", 10, 14),
    Sketcher.Constraint("Equal", 14, 18),
    Sketcher.Constraint("Equal", 18, 22),
    Sketcher.Constraint("Symmetric", 4, 2, 12, 2, -1, 1),
    Sketcher.Constraint("Symmetric", 0, 2, 16, 2, -1, 1),
    Sketcher.Constraint("Symmetric", 3, 2, 19, 2, -1, 1),
    Sketcher.Constraint("Symmetric", 8, 2, 20, 2, -1, 1),
    Sketcher.Constraint("Symmetric", 11, 2, 23, 2, -1, 1),
    Sketcher.Constraint("Symmetric", 11, 2, 16, 2, -2),
    Sketcher.Constraint("Symmetric", 8, 2, 19, 2, -2),
    Sketcher.Constraint("Perpendicular", 0, 1),
    Sketcher.Constraint("Parallel", 1, 3),
    Sketcher.Constraint("Perpendicular", 8, 9),
    Sketcher.Constraint("Parallel", 9, 11),
    Sketcher.Constraint("Perpendicular", 16, 17),
    Sketcher.Constraint("Parallel", 17, 19),
    Sketcher.Constraint("Perpendicular", 20, 21),
    Sketcher.Constraint("Parallel", 21, 23),
    Sketcher.Constraint("Horizontal", 5, 2, 6, 2),
    Sketcher.Constraint("Horizontal", 13, 2, 14, 2),
    Sketcher.Constraint("Equal", 1, 3),
    Sketcher.Constraint("Radius", 2, 90.0),
    Sketcher.Constraint("DistanceX", 4, 1, 4, 2, 49.0),
    Sketcher.Constraint("Angle", 0, Q("-60 deg")),
    Sketcher.Constraint("Distance", 0, 49.0),
    Sketcher.Constraint("DistanceY", -1, 1, 4, 2, 58.0),
    Sketcher.Constraint("DistanceY", 8, 2, 0, 2, 58.0),
])
sketch4.setExpression("Constraints[59]", "Params.sketch4_radius")
sketch4.setExpression("Constraints[60]", "Params.sketch4_width")
sketch4.setExpression("Constraints[62]", "Params.sketch4_length")
pocket3 = body.newObject("PartDesign::Pocket", "Pocket002")
pocket3.Profile = sketch4
pocket3.setExpression("Length", "Params.pocket3_length")

sketch5 = body.newObject("Sketcher::SketchObject", "Sketch004")
sketch5.AttachmentSupport = (doc.getObject("XY_Plane"), [""])
sketch5.MapMode = "FlatFace"
sketch5.AttachmentOffset = App.Placement(V(0, 0, 2), App.Rotation())
sketch5.addGeometry([
    Part.Circle(V(43, 74.5, 0), V(0, 0, 1), 3.2),
    Part.Circle(V(86, 0, 0), V(0, 0, 1), 3.2),
    Part.Circle(V(43, -74.5, 0), V(0, 0, 1), 3.2),
    Part.Circle(V(-43, -74.5, 0), V(0, 0, 1), 3.2),
    Part.Circle(V(-86, 0, 0), V(0, 0, 1), 3.2),
    Part.Circle(V(-43, 74.5, 0), V(0, 0, 1), 3.2),
], False)
sketch5.addConstraint([
    Sketcher.Constraint("Equal", 0, 1),
    Sketcher.Constraint("Equal", 1, 2),
    Sketcher.Constraint("Equal", 2, 3),
    Sketcher.Constraint("Equal", 3, 4),
    Sketcher.Constraint("Equal", 4, 5),
    Sketcher.Constraint("Symmetric", 0, 3, 3, 3, -1, 1),
    Sketcher.Constraint("Symmetric", 1, 3, 4, 3, -1, 1),
    Sketcher.Constraint("Symmetric", 2, 3, 5, 3, -1, 1),
    Sketcher.Constraint("Symmetric", 2, 3, 3, 3, -2),
    Sketcher.Constraint("PointOnObject", 1, 3, -1),
    Sketcher.Constraint("Diameter", 0, 6.5),
    Sketcher.Constraint("DistanceX", -1, 1, 0, 3, 43.0),
    Sketcher.Constraint("DistanceX", -1, 1, 1, 3, 86.0),
    Sketcher.Constraint("DistanceY", 2, 3, 0, 3, 148.956369),
])
sketch5.setExpression("Constraints[10]", "Params.sketch5_diameter")
pocket4 = body.newObject("PartDesign::Pocket", "Pocket003")
pocket4.Profile = sketch5
pocket4.setExpression("Length", "Params.pocket4_length")
doc.recompute()

fillet = body.newObject("PartDesign::Fillet", "Fillet")
fillet.Base = (pocket4, edges_at(pocket4, [
    (37.979, 50.218, 1),
    (62.749, 64.518, 1),
    (87.249, 22.083, 1),
    (62.479, 7.782, 1),
    (-24.5, 58, 1),
    (-24.5, 86.601, 1),
    (24.5, 86.601, 1),
    (24.5, 58, 1),
    (62.479, -7.782, 1),
    (87.249, -22.083, 1),
    (62.749, -64.518, 1),
    (37.979, -50.218, 1),
    (24.5, -58, 1),
    (24.5, -86.601, 1),
    (-24.5, -86.601, 1),
    (-24.5, -58, 1),
    (-37.979, -50.218, 1),
    (-62.749, -64.518, 1),
    (-87.249, -22.083, 1),
    (-62.479, -7.782, 1),
    (-62.479, 7.782, 1),
    (-87.249, 22.083, 1),
    (-62.749, 64.518, 1),
    (-37.979, 50.218, 1),
]))
fillet.setExpression("Radius", "Params.fillet_radius")

doc.recompute()
